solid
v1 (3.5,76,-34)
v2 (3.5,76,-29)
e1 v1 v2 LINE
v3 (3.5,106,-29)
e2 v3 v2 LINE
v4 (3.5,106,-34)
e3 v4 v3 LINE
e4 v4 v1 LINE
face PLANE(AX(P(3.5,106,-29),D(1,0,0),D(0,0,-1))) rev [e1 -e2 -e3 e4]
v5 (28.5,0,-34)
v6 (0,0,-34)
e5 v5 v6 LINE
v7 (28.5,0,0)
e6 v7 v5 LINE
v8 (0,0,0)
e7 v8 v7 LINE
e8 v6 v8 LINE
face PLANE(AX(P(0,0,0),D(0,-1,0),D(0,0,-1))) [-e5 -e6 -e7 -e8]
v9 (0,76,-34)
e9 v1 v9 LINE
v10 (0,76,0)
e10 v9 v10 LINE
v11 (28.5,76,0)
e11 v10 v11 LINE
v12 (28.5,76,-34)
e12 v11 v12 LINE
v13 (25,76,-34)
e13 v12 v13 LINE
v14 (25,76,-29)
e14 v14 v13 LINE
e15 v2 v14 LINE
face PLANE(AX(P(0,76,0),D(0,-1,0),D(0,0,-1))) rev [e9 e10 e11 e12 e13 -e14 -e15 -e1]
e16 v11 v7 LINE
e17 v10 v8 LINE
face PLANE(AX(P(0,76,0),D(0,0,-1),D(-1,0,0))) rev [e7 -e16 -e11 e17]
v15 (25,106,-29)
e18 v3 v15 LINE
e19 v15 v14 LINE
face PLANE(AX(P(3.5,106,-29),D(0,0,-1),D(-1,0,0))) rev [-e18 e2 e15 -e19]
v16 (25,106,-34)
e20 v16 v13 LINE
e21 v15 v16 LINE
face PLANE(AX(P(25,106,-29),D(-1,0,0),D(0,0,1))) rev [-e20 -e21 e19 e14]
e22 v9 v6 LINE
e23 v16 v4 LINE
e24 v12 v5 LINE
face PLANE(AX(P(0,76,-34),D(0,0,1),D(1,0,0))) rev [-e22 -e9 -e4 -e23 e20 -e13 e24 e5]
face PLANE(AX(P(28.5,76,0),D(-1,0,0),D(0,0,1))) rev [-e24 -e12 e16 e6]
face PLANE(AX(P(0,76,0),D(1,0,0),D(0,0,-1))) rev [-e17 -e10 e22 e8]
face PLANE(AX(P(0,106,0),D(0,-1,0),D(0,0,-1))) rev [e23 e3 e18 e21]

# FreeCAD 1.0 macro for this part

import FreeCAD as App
import Part
import Sketcher
from FreeCAD import Vector


def add_polygon(sketch, points):
    """Adds a closed chain of lines whose ends are joined by coincident constraints."""
    first, n = sketch.GeometryCount, len(points)
    for a, b in zip(points, points[1:] + points[:1]):
        sketch.addGeometry(Part.LineSegment(App.Vector(*a, 0), App.Vector(*b, 0)), False)
    for i in range(n):
        sketch.addConstraint(Sketcher.Constraint("Coincident", first + i, 2, first + (i + 1) % n, 1))

doc = App.newDocument("Part")
body = doc.addObject("PartDesign::Body", "Body")

sketch1 = body.newObject("Sketcher::SketchObject", "Sketch")
sketch1.AttachmentSupport = (doc.getObject("XZ_Plane"), [""])
sketch1.MapMode = "FlatFace"
add_polygon(sketch1, [(0, -34), (0, 0), (28, 0), (28, -34)])
sketch1.addConstraint(Sketcher.Constraint("Vertical", 0))
sketch1.addConstraint(Sketcher.Constraint("Horizontal", 1))
sketch1.addConstraint(Sketcher.Constraint("Vertical", 2))
sketch1.addConstraint(Sketcher.Constraint("Horizontal", 3))
sketch1.addConstraint(Sketcher.Constraint("Coincident", 0, 2, -1, 1))
sketch1.addConstraint(Sketcher.Constraint("DistanceY", 0, 1, 0, 2, 34.0))
sketch1.addConstraint(Sketcher.Constraint("DistanceX", 1, 1, 1, 2, 28.5))
pad1 = body.newObject("PartDesign::Pad", "Pad")
pad1.Profile = sketch1
pad1.Length = 76
pad1.Reversed = True

sketch2 = body.newObject("Sketcher::SketchObject", "Sketch001")
sketch2.AttachmentSupport = (doc.getObject("XZ_Plane"), [""])
sketch2.MapMode = "FlatFace"
sketch2.AttachmentOffset = App.Placement(Vector(0, 0, -76), App.Rotation())
add_polygon(sketch2, [(4, -34), (4, -29), (25, -29), (25, -34)])
sketch2.addConstraint(Sketcher.Constraint("Vertical", 0))
sketch2.addConstraint(Sketcher.Constraint("Horizontal", 1))
sketch2.addConstraint(Sketcher.Constraint("Vertical", 2))
sketch2.addConstraint(Sketcher.Constraint("Horizontal", 3))
sketch2.addConstraint(Sketcher.Constraint("DistanceY", 0, 1, 0, 2, 5.0))
sketch2.addConstraint(Sketcher.Constraint("DistanceX", 1, 1, 1, 2, 21.5))
sketch2.addConstraint(Sketcher.Constraint("DistanceY", 0, 2, -1, 1, 29.0))
sketch2.addConstraint(Sketcher.Constraint("DistanceX", -1, 1, 1, 2, 25.0))
pad2 = body.newObject("PartDesign::Pad", "Pad001")
pad2.Profile = sketch2
pad2.Length = 30
pad2.Reversed = True

doc.recompute()
